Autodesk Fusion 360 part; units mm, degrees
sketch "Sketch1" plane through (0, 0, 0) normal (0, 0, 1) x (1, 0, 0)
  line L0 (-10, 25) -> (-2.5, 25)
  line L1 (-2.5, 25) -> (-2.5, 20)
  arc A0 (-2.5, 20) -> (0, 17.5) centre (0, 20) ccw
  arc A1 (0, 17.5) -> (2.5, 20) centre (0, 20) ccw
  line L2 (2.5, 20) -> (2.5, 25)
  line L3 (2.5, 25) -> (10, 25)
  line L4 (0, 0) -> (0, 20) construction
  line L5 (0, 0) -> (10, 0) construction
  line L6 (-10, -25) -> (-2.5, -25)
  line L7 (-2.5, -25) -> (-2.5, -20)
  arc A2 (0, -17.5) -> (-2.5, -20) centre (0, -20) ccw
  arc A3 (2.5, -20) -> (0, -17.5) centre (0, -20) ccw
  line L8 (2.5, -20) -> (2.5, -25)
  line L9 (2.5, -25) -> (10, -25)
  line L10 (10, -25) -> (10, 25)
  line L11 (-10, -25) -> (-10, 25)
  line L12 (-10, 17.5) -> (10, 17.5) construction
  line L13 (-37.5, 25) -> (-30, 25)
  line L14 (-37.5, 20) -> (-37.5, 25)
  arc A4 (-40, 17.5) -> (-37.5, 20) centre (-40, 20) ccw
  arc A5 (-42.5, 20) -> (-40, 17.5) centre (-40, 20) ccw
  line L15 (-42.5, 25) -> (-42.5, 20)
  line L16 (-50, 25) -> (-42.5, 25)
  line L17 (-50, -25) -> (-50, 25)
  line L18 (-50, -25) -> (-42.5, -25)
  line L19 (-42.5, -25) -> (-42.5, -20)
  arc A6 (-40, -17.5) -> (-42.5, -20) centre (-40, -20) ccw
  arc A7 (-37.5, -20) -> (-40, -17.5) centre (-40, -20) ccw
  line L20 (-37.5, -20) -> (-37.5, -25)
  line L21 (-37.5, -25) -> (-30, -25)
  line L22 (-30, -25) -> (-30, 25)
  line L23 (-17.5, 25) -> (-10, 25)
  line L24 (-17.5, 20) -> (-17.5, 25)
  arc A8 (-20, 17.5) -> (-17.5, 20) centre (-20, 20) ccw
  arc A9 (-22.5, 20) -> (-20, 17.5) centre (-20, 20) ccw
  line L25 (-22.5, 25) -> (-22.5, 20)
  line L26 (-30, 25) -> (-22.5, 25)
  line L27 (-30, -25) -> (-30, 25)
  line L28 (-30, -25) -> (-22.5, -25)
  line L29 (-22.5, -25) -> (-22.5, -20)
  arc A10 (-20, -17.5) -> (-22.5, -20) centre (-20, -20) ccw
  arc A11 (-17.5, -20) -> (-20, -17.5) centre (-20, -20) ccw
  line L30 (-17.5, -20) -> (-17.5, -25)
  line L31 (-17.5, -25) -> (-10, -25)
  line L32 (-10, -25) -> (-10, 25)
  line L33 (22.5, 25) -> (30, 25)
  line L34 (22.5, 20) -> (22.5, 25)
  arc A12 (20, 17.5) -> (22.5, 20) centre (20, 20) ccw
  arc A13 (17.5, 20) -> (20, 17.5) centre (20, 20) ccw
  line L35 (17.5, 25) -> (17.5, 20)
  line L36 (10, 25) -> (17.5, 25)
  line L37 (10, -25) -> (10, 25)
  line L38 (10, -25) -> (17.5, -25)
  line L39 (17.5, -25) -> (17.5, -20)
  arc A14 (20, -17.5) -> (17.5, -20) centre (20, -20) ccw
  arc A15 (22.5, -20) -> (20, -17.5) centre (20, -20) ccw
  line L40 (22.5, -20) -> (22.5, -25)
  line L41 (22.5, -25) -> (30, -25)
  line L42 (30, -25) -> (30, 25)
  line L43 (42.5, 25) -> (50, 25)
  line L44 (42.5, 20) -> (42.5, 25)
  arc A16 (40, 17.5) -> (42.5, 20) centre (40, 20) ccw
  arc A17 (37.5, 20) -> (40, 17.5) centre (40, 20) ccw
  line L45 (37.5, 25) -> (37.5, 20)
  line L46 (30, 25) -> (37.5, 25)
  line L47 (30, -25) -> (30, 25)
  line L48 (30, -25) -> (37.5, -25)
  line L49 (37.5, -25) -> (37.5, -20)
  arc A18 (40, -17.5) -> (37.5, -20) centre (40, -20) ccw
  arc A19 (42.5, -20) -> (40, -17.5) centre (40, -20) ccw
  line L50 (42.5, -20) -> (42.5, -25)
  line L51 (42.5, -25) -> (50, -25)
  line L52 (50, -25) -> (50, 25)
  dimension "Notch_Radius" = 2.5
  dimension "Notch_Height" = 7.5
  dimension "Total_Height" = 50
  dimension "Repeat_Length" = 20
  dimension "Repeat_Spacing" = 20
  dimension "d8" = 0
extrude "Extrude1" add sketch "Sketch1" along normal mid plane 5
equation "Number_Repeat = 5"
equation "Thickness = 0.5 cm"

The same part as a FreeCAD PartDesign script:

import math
import FreeCAD as App
import Part
import Sketcher
from FreeCAD import Vector

doc = App.newDocument("Part")
body = doc.addObject("PartDesign::Body", "Body")

sketch1 = body.newObject("Sketcher::SketchObject", "Sketch")
sketch1.AttachmentSupport = (doc.getObject("XY_Plane"), [""])
sketch1.MapMode = "FlatFace"
sketch1.addGeometry([
    Part.LineSegment(Vector(-2.5, 25, 0), Vector(-17.5, 25, 0)),
    Part.LineSegment(Vector(-17.5, 25, 0), Vector(-17.5, 20, 0)),
    Part.ArcOfCircle(Part.Circle(Vector(-20, 20, 0), Vector(0, 0, 1), 2.5), math.radians(180), math.radians(360)),
    Part.LineSegment(Vector(-22.5, 20, 0), Vector(-22.5, 25, 0)),
    Part.LineSegment(Vector(-22.5, 25, 0), Vector(-37.5, 25, 0)),
    Part.LineSegment(Vector(-37.5, 25, 0), Vector(-37.5, 20, 0)),
    Part.ArcOfCircle(Part.Circle(Vector(-40, 20, 0), Vector(0, 0, 1), 2.5), math.radians(180), math.radians(360)),
    Part.LineSegment(Vector(-42.5, 20, 0), Vector(-42.5, 25, 0)),
    Part.LineSegment(Vector(-42.5, 25, 0), Vector(-50, 25, 0)),
    Part.LineSegment(Vector(-50, 25, 0), Vector(-50, -25, 0)),
    Part.LineSegment(Vector(-50, -25, 0), Vector(-42.5, -25, 0)),
    Part.LineSegment(Vector(-42.5, -25, 0), Vector(-42.5, -20, 0)),
    Part.ArcOfCircle(Part.Circle(Vector(-40, -20, 0), Vector(0, 0, 1), 2.5), math.radians(0), math.radians(180)),
    Part.LineSegment(Vector(-37.5, -20, 0), Vector(-37.5, -25, 0)),
    Part.LineSegment(Vector(-37.5, -25, 0), Vector(-22.5, -25, 0)),
    Part.LineSegment(Vector(-22.5, -25, 0), Vector(-22.5, -20, 0)),
    Part.ArcOfCircle(Part.Circle(Vector(-20, -20, 0), Vector(0, 0, 1), 2.5), math.radians(0), math.radians(180)),
    Part.LineSegment(Vector(-17.5, -20, 0), Vector(-17.5, -25, 0)),
    Part.LineSegment(Vector(-17.5, -25, 0), Vector(-2.5, -25, 0)),
    Part.LineSegment(Vector(-2.5, -25, 0), Vector(-2.5, -20, 0)),
    Part.ArcOfCircle(Part.Circle(Vector(0, -20, 0), Vector(0, 0, 1), 2.5), math.radians(0), math.radians(180)),
    Part.LineSegment(Vector(2.5, -20, 0), Vector(2.5, -25, 0)),
    Part.LineSegment(Vector(2.5, -25, 0), Vector(17.5, -25, 0)),
    Part.LineSegment(Vector(17.5, -25, 0), Vector(17.5, -20, 0)),
    Part.ArcOfCircle(Part.Circle(Vector(20, -20, 0), Vector(0, 0, 1), 2.5), math.radians(0), math.radians(180)),
    Part.LineSegment(Vector(22.5, -20, 0), Vector(22.5, -25, 0)),
    Part.LineSegment(Vector(22.5, -25, 0), Vector(37.5, -25, 0)),
    Part.LineSegment(Vector(37.5, -25, 0), Vector(37.5, -20, 0)),
    Part.ArcOfCircle(Part.Circle(Vector(40, -20, 0), Vector(0, 0, 1), 2.5), math.radians(0), math.radians(180)),
    Part.LineSegment(Vector(42.5, -20, 0), Vector(42.5, -25, 0)),
    Part.LineSegment(Vector(42.5, -25, 0), Vector(50, -25, 0)),
    Part.LineSegment(Vector(50, -25, 0), Vector(50, 25, 0)),
    Part.LineSegment(Vector(50, 25, 0), Vector(42.5, 25, 0)),
    Part.LineSegment(Vector(42.5, 25, 0), Vector(42.5, 20, 0)),
    Part.ArcOfCircle(Part.Circle(Vector(40, 20, 0), Vector(0, 0, 1), 2.5), math.radians(180), math.radians(360)),
    Part.LineSegment(Vector(37.5, 20, 0), Vector(37.5, 25, 0)),
    Part.LineSegment(Vector(37.5, 25, 0), Vector(22.5, 25, 0)),
    Part.LineSegment(Vector(22.5, 25, 0), Vector(22.5, 20, 0)),
    Part.ArcOfCircle(Part.Circle(Vector(20, 20, 0), Vector(0, 0, 1), 2.5), math.radians(180), math.radians(360)),
    Part.LineSegment(Vector(17.5, 20, 0), Vector(17.5, 25, 0)),
    Part.LineSegment(Vector(17.5, 25, 0), Vector(2.5, 25, 0)),
    Part.LineSegment(Vector(2.5, 25, 0), Vector(2.5, 20, 0)),
    Part.ArcOfCircle(Part.Circle(Vector(0, 20, 0), Vector(0, 0, 1), 2.5), math.radians(180), math.radians(360)),
    Part.LineSegment(Vector(-2.5, 20, 0), Vector(-2.5, 25, 0)),
], False)
sketch1.addConstraint([
    Sketcher.Constraint("Coincident", 0, 2, 1, 1),
    Sketcher.Constraint("Tangent", 1, 2, 2, 2),
    Sketcher.Constraint("Tangent", 2, 1, 3, 1),
    Sketcher.Constraint("Coincident", 3, 2, 4, 1),
    Sketcher.Constraint("Coincident", 4, 2, 5, 1),
    Sketcher.Constraint("Tangent", 5, 2, 6, 2),
    Sketcher.Constraint("Tangent", 6, 1, 7, 1),
    Sketcher.Constraint("Coincident", 7, 2, 8, 1),
    Sketcher.Constraint("Coincident", 8, 2, 9, 1),
    Sketcher.Constraint("Coincident", 9, 2, 10, 1),
    Sketcher.Constraint("Coincident", 10, 2, 11, 1),
    Sketcher.Constraint("Tangent", 11, 2, 12, 2),
    Sketcher.Constraint("Tangent", 12, 1, 13, 1),
    Sketcher.Constraint("Coincident", 13, 2, 14, 1),
    Sketcher.Constraint("Coincident", 14, 2, 15, 1),
    Sketcher.Constraint("Tangent", 15, 2, 16, 2),
    Sketcher.Constraint("Tangent", 16, 1, 17, 1),
    Sketcher.Constraint("Coincident", 17, 2, 18, 1),
    Sketcher.Constraint("Coincident", 18, 2, 19, 1),
    Sketcher.Constraint("Tangent", 19, 2, 20, 2),
    Sketcher.Constraint("Tangent", 20, 1, 21, 1),
    Sketcher.Constraint("Coincident", 21, 2, 22, 1),
    Sketcher.Constraint("Coincident", 22, 2, 23, 1),
    Sketcher.Constraint("Tangent", 23, 2, 24, 2),
    Sketcher.Constraint("Tangent", 24, 1, 25, 1),
    Sketcher.Constraint("Coincident", 25, 2, 26, 1),
    Sketcher.Constraint("Coincident", 26, 2, 27, 1),
    Sketcher.Constraint("Tangent", 27, 2, 28, 2),
    Sketcher.Constraint("Tangent", 28, 1, 29, 1),
    Sketcher.Constraint("Coincident", 29, 2, 30, 1),
    Sketcher.Constraint("Coincident", 30, 2, 31, 1),
    Sketcher.Constraint("Coincident", 31, 2, 32, 1),
    Sketcher.Constraint("Coincident", 32, 2, 33, 1),
    Sketcher.Constraint("Tangent", 33, 2, 34, 2),
    Sketcher.Constraint("Tangent", 34, 1, 35, 1),
    Sketcher.Constraint("Coincident", 35, 2, 36, 1),
    Sketcher.Constraint("Coincident", 36, 2, 37, 1),
    Sketcher.Constraint("Tangent", 37, 2, 38, 2),
    Sketcher.Constraint("Tangent", 38, 1, 39, 1),
    Sketcher.Constraint("Coincident", 39, 2, 40, 1),
    Sketcher.Constraint("Coincident", 40, 2, 41, 1),
    Sketcher.Constraint("Tangent", 41, 2, 42, 2),
    Sketcher.Constraint("Tangent", 42, 1, 43, 1),
    Sketcher.Constraint("Coincident", 43, 2, 0, 1),
    Sketcher.Constraint("Horizontal", 0),
    Sketcher.Constraint("Vertical", 1),
    Sketcher.Constraint("Vertical", 3),
    Sketcher.Constraint("Horizontal", 4),
    Sketcher.Constraint("Vertical", 5),
    Sketcher.Constraint("Vertical", 7),
    Sketcher.Constraint("Horizontal", 8),
    Sketcher.Constraint("Vertical", 9),
    Sketcher.Constraint("Horizontal", 10),
    Sketcher.Constraint("Vertical", 11),
    Sketcher.Constraint("Vertical", 13),
    Sketcher.Constraint("Horizontal", 14),
    Sketcher.Constraint("Vertical", 15),
    Sketcher.Constraint("Vertical", 17),
    Sketcher.Constraint("Horizontal", 18),
    Sketcher.Constraint("Vertical", 19),
    Sketcher.Constraint("Vertical", 21),
    Sketcher.Constraint("Horizontal", 22),
    Sketcher.Constraint("Vertical", 23),
    Sketcher.Constraint("Vertical", 25),
    Sketcher.Constraint("Horizontal", 26),
    Sketcher.Constraint("Vertical", 27),
    Sketcher.Constraint("Vertical", 29),
    Sketcher.Constraint("Horizontal", 30),
    Sketcher.Constraint("Vertical", 31),
    Sketcher.Constraint("Horizontal", 32),
    Sketcher.Constraint("Vertical", 33),
    Sketcher.Constraint("Vertical", 35),
    Sketcher.Constraint("Horizontal", 36),
    Sketcher.Constraint("Vertical", 37),
    Sketcher.Constraint("Vertical", 39),
    Sketcher.Constraint("Horizontal", 40),
    Sketcher.Constraint("Vertical", 41),
    Sketcher.Constraint("Vertical", 43),
    Sketcher.Constraint("Equal", 2, 6),
    Sketcher.Constraint("Equal", 6, 12),
    Sketcher.Constraint("Equal", 12, 16),
    Sketcher.Constraint("Equal", 16, 20),
    Sketcher.Constraint("Equal", 20, 24),
    Sketcher.Constraint("Equal", 24, 28),
    Sketcher.Constraint("Equal", 28, 34),
    Sketcher.Constraint("Equal", 34, 38),
    Sketcher.Constraint("Equal", 38, 42),
    Sketcher.Constraint("Symmetric", 2, 3, 24, 3, -1, 1),
    Sketcher.Constraint("Symmetric", 6, 3, 28, 3, -1, 1),
    Sketcher.Constraint("Symmetric", 12, 3, 34, 3, -1, 1),
    Sketcher.Constraint("Symmetric", 16, 3, 38, 3, -1, 1),
    Sketcher.Constraint("Symmetric", 20, 3, 42, 3, -1, 1),
    Sketcher.Constraint("Symmetric", 8, 2, 30, 2, -1, 1),
    Sketcher.Constraint("Symmetric", 16, 3, 24, 3, -2),
    Sketcher.Constraint("Symmetric", 12, 3, 28, 3, -2),
    Sketcher.Constraint("Symmetric", 18, 2, 21, 2, -2),
    Sketcher.Constraint("Horizontal", 2, 3, 6, 3),
    Sketcher.Constraint("Horizontal", 16, 3, 20, 3),
    Sketcher.Constraint("Horizontal", 0, 2, 3, 2),
    Sketcher.Constraint("Horizontal", 4, 2, 7, 2),
    Sketcher.Constraint("Horizontal", 10, 2, 13, 2),
    Sketcher.Constraint("Horizontal", 14, 2, 17, 2),
    Sketcher.Constraint("Horizontal", 22, 2, 25, 2),
    Sketcher.Constraint("Horizontal", 26, 2, 29, 2),
    Sketcher.Constraint("Horizontal", 8, 2, 31, 2),
    Sketcher.Constraint("Horizontal", 32, 2, 35, 2),
    Sketcher.Constraint("Horizontal", 36, 2, 39, 2),
    Sketcher.Constraint("Equal", 0, 4),
    Sketcher.Constraint("Radius", 2, 2.5),
    Sketcher.Constraint("DistanceY", 9, 2, 9, 1, 50.0),
    Sketcher.Constraint("DistanceX", 8, 2, 8, 1, 7.5),
    Sketcher.Constraint("DistanceX", 2, 3, -1, 1, 20.0),
    Sketcher.Constraint("DistanceY", -1, 1, 2, 3, 20.0),
])
pad1 = body.newObject("PartDesign::Pad", "Pad")
pad1.Profile = sketch1
pad1.Length = 5
pad1.Midplane = True

doc.recompute()
